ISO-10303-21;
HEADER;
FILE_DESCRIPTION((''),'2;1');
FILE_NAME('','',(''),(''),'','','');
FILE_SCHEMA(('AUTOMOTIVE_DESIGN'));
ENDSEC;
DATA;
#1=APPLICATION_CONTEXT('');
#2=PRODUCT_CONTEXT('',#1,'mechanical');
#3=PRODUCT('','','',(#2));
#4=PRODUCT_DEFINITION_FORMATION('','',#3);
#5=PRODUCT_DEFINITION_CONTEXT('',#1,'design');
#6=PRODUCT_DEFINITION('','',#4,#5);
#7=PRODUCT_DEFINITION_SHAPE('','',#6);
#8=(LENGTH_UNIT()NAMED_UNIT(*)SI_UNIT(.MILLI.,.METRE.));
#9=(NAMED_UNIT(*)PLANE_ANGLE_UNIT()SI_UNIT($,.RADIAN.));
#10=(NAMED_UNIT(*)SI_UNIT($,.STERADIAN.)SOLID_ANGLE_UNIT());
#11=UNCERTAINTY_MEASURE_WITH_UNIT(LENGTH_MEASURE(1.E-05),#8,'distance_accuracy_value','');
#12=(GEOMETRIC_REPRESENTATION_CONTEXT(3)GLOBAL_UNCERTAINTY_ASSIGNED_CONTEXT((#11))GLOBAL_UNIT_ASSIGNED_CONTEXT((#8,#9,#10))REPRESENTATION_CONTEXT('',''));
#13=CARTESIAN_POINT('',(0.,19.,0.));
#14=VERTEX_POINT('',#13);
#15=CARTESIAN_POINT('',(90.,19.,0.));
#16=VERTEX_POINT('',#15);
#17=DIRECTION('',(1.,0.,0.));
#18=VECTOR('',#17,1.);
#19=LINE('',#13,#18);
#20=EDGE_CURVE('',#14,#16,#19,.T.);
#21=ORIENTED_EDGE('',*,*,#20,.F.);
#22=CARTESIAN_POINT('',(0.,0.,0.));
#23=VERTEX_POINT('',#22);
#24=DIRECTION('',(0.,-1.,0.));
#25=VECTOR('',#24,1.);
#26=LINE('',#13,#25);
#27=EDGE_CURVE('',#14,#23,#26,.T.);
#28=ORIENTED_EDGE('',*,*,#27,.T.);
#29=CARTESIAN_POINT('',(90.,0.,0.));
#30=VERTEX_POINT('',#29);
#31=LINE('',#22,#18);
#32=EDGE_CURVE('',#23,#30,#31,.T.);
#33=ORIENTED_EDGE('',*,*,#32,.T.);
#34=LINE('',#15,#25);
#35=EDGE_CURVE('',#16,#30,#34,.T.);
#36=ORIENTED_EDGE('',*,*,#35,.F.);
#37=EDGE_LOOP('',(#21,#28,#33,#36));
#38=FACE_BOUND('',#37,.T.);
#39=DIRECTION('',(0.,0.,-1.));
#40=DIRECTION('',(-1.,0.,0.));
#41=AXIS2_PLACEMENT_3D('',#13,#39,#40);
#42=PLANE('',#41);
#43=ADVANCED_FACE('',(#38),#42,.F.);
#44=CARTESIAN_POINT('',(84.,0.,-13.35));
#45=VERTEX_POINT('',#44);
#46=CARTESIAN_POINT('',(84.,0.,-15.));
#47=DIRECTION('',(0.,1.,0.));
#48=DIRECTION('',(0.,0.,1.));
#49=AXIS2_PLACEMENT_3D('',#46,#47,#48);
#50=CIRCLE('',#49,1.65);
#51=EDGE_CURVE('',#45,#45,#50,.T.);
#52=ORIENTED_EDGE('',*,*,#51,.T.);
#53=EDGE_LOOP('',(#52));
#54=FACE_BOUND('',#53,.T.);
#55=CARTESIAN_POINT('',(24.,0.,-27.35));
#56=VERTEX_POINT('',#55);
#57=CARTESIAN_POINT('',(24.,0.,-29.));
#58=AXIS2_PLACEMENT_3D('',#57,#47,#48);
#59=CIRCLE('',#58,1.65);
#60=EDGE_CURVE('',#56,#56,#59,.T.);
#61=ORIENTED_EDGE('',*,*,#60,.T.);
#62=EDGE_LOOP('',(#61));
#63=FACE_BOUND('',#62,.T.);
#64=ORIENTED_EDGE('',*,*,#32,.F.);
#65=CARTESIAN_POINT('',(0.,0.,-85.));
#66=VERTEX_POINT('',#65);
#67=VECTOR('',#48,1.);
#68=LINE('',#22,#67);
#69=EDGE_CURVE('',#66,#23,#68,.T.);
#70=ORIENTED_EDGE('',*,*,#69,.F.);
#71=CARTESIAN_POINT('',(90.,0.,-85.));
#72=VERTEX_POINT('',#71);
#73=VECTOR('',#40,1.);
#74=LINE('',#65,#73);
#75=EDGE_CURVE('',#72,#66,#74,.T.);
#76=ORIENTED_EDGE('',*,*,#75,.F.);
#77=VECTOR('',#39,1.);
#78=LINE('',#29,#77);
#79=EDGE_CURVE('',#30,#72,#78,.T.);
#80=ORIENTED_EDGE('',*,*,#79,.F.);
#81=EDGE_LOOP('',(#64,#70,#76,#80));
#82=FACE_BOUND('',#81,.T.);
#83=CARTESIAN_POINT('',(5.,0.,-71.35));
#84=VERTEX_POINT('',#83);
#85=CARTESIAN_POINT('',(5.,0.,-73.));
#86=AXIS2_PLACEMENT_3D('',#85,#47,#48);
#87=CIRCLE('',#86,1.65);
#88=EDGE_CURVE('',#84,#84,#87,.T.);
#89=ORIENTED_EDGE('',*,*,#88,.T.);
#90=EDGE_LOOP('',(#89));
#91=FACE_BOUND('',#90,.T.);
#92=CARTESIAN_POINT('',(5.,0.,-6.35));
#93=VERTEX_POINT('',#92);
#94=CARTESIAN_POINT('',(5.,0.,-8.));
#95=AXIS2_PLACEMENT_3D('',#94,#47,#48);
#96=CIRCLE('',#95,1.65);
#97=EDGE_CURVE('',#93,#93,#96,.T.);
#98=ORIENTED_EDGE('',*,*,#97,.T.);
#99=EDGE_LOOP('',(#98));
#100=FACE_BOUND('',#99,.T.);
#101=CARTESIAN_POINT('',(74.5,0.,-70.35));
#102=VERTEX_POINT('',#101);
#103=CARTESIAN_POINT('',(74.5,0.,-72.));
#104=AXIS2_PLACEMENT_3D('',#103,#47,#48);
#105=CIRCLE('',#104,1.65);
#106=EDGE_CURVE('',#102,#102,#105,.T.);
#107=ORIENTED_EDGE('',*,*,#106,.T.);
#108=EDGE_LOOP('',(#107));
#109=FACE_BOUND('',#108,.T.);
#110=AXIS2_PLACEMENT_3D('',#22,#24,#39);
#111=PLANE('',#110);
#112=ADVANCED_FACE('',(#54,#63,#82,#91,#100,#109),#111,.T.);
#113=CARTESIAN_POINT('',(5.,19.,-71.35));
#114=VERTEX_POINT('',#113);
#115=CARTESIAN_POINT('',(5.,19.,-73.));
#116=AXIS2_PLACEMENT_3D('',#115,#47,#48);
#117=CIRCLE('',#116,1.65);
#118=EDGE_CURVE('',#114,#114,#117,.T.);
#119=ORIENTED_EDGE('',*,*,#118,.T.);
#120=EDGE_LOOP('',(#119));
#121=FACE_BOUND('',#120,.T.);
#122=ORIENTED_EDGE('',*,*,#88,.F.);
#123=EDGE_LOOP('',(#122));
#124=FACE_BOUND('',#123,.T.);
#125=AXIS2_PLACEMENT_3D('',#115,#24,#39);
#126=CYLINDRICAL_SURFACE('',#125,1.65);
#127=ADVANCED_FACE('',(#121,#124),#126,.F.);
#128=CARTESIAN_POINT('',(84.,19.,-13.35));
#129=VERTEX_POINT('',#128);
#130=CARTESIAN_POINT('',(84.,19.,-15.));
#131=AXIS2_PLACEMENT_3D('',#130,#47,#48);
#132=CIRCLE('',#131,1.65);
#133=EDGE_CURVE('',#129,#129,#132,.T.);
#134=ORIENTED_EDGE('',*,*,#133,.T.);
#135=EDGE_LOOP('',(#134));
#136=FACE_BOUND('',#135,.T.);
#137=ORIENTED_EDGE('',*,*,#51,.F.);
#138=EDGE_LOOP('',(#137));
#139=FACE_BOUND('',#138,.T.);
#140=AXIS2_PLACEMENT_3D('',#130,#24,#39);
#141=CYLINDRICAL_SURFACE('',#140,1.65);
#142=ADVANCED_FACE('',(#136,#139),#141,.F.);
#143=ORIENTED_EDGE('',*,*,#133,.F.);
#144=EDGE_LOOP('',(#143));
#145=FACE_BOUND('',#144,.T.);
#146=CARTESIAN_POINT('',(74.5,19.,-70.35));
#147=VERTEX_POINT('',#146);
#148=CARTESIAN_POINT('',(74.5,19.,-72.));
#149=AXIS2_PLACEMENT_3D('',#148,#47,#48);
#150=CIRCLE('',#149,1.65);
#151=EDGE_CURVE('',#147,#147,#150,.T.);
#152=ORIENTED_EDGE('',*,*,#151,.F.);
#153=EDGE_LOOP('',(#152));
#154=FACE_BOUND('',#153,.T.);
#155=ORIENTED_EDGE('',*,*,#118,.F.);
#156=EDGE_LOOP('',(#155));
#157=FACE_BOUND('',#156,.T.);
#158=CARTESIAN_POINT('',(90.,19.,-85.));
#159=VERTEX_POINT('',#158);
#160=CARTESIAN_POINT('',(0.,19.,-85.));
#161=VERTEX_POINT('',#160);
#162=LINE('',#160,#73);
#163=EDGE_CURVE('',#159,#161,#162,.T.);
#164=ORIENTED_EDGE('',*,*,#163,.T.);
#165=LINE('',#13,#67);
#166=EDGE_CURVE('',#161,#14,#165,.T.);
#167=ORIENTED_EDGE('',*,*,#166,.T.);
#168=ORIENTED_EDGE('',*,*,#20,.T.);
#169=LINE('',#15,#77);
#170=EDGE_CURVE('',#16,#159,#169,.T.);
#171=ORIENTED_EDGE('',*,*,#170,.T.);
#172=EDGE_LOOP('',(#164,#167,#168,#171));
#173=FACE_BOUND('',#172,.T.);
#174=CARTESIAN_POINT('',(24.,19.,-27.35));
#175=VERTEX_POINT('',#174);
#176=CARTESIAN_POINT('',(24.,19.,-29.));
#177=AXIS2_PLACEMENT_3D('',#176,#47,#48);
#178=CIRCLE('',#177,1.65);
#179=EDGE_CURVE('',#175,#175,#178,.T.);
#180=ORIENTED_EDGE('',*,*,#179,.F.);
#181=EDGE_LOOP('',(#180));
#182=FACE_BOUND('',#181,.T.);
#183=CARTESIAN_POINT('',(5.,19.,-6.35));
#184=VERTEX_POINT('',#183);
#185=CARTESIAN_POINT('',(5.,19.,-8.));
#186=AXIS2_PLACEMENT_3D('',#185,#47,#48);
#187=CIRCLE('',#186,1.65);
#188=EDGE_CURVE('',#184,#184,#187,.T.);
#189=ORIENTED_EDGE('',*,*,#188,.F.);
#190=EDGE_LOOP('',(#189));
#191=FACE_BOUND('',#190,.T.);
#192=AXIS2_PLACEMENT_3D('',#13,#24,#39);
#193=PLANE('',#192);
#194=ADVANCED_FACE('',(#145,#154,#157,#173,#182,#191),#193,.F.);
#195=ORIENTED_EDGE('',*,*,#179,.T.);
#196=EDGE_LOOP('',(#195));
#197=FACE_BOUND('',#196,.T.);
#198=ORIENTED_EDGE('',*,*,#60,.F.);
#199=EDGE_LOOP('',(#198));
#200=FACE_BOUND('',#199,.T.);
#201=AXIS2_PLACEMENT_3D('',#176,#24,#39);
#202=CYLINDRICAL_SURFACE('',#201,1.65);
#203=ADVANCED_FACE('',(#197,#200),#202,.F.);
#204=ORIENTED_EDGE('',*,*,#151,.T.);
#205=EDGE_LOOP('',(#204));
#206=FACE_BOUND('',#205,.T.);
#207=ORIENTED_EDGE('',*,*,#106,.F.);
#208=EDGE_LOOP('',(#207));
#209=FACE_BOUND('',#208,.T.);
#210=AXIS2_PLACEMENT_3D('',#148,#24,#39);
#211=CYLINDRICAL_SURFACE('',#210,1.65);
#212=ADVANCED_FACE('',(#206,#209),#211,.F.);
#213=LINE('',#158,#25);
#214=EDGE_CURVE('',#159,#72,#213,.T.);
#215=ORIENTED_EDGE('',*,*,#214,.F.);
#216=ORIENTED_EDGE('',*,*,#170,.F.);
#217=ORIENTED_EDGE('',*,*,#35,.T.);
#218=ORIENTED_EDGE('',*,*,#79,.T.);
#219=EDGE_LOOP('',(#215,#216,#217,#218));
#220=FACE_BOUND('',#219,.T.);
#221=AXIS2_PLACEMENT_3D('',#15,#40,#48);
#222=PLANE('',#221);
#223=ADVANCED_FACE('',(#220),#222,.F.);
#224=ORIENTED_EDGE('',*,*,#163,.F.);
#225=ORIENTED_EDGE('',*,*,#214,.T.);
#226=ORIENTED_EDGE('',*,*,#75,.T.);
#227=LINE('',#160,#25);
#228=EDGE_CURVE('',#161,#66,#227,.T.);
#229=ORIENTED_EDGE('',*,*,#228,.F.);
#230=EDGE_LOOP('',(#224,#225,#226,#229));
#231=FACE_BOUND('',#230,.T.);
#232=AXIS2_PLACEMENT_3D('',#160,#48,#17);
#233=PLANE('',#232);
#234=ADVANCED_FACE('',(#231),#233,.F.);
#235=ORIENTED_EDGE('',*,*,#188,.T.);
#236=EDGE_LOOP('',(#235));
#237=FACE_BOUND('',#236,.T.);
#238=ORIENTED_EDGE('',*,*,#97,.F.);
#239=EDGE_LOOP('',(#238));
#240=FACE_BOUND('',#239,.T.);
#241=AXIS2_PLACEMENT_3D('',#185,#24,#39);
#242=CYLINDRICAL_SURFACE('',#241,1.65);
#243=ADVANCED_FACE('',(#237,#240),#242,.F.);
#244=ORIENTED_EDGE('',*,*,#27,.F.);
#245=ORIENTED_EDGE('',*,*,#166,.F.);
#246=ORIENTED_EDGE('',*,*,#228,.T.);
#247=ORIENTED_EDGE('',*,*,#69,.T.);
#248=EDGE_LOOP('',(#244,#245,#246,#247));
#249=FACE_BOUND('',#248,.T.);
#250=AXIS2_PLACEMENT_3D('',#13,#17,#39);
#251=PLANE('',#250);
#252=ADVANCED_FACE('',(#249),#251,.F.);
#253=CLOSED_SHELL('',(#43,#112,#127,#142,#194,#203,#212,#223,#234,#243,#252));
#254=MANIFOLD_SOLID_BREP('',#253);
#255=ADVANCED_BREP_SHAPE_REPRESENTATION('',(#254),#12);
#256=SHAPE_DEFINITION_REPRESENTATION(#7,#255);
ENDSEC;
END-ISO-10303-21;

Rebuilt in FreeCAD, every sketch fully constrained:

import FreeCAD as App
import Part
import Sketcher
from FreeCAD import Vector

doc = App.newDocument("Part")
body = doc.addObject("PartDesign::Body", "Body")

# Sketch on XZ plane
sketch1 = body.newObject("Sketcher::SketchObject", "Sketch")
sketch1.AttachmentSupport = (doc.getObject("XZ_Plane"), [""])
sketch1.MapMode = "FlatFace"
sketch1.addGeometry([
    Part.LineSegment(Vector(0, -85, 0), Vector(0, 0, 0)),  # 0
    Part.LineSegment(Vector(0, 0, 0), Vector(90, 0, 0)),  # 1
    Part.LineSegment(Vector(90, 0, 0), Vector(90, -85, 0)),  # 2
    Part.LineSegment(Vector(90, -85, 0), Vector(0, -85, 0)),  # 3
    Part.Circle(Vector(5, -8, 0), Vector(0, 0, 1), 1.6),  # 4
    Part.Circle(Vector(24, -29, 0), Vector(0, 0, 1), 1.6),  # 5
    Part.Circle(Vector(84, -15, 0), Vector(0, 0, 1), 1.6),  # 6
    Part.Circle(Vector(5, -73, 0), Vector(0, 0, 1), 1.6),  # 7
    Part.Circle(Vector(74.5, -72, 0), Vector(0, 0, 1), 1.6),  # 8
], False)
sketch1.addConstraint([
    Sketcher.Constraint("Coincident", 0, 2, 1, 1),
    Sketcher.Constraint("Coincident", 1, 2, 2, 1),
    Sketcher.Constraint("Coincident", 2, 2, 3, 1),
    Sketcher.Constraint("Coincident", 3, 2, 0, 1),
    Sketcher.Constraint("Vertical", 0),
    Sketcher.Constraint("Horizontal", 1),
    Sketcher.Constraint("Vertical", 2),
    Sketcher.Constraint("Horizontal", 3),
    Sketcher.Constraint("Coincident", 0, 2, -1, 1),
    Sketcher.Constraint("Equal", 4, 5),
    Sketcher.Constraint("Equal", 5, 6),
    Sketcher.Constraint("Equal", 6, 7),
    Sketcher.Constraint("Equal", 7, 8),
    Sketcher.Constraint("Vertical", 4, 3, 7, 3),
    Sketcher.Constraint("Diameter", 4, 3.3),
    Sketcher.Constraint("DistanceX", 1, 1, 1, 2, 90.0),
    Sketcher.Constraint("DistanceY", 0, 1, 0, 2, 85.0),
    Sketcher.Constraint("DistanceX", -1, 1, 4, 3, 5.0),
    Sketcher.Constraint("DistanceY", 4, 3, -1, 1, 8.0),
    Sketcher.Constraint("DistanceX", -1, 1, 5, 3, 24.0),
    Sketcher.Constraint("DistanceY", 5, 3, -1, 1, 29.0),
    Sketcher.Constraint("DistanceX", -1, 1, 6, 3, 84.0),
    Sketcher.Constraint("DistanceY", 6, 3, -1, 1, 15.0),
    Sketcher.Constraint("DistanceY", 7, 3, -1, 1, 73.0),
    Sketcher.Constraint("DistanceY", 8, 3, -1, 1, 72.0),
    Sketcher.Constraint("DistanceX", -1, 1, 8, 3, 74.5),
])
pad1 = body.newObject("PartDesign::Pad", "Pad")
pad1.Profile = sketch1
pad1.Length = 19
pad1.Reversed = True

doc.recompute()
